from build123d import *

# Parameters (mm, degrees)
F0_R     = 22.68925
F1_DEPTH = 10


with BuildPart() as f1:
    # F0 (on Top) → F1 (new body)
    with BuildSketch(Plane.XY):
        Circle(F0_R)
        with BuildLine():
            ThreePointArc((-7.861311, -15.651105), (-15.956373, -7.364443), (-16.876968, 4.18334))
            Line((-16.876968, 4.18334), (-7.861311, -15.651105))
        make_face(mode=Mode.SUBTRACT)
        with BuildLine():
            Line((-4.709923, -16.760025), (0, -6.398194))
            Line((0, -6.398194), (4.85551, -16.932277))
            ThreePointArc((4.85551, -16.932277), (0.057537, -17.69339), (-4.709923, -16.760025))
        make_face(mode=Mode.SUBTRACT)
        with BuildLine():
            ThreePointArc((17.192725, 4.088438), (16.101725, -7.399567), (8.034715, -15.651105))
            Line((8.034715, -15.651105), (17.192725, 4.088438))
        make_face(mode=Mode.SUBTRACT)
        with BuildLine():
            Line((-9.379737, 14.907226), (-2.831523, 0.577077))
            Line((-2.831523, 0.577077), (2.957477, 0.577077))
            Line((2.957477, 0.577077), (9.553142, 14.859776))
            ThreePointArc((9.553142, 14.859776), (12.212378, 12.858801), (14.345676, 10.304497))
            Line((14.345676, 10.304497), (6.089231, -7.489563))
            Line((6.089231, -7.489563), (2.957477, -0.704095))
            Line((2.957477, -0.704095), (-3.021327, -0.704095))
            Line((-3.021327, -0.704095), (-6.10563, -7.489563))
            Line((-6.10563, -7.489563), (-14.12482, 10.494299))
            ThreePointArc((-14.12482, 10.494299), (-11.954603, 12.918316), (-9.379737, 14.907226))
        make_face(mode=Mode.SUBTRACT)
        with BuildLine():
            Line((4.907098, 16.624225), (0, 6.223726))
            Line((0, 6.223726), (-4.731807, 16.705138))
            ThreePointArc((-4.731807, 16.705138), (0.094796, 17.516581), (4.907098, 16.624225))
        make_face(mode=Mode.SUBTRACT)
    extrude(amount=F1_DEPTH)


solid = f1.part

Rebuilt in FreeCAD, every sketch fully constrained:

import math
import FreeCAD as App
import Part
import Sketcher
from FreeCAD import Vector
Q = App.Units.Quantity

doc = App.newDocument("Part")
body = doc.addObject("PartDesign::Body", "Body")

sketch1 = doc.addObject("Sketcher::SketchObject", "Sketch")
body.addObject(sketch1)
sketch1.AttachmentSupport = (doc.XY_Plane, [""])
sketch1.MapMode = "FlatFace"
sketch1.addGeometry([
    Part.Circle(Vector(0, 0, 0), Vector(0, 0, 1), 23),
    Part.ArcOfCircle(Part.Circle(Vector(0, -4, 0), Vector(0, 0, 1), 14), math.radians(-111), math.radians(-71)),
    Part.LineSegment(Vector(-5, -17, 0), Vector(0, -6, 0)),
    Part.LineSegment(Vector(0, -6, 0), Vector(5, -17, 0)),
    Part.LineSegment(Vector(-17, 4, 0), Vector(-8, -16, 0)),
    Part.ArcOfCircle(Part.Circle(Vector(0, 0, 0), Vector(0, 0, 1), 17), math.radians(165), math.radians(244)),
    Part.LineSegment(Vector(8, -16, 0), Vector(17, 4, 0)),
    Part.ArcOfCircle(Part.Circle(Vector(0, 0, 0), Vector(0, 0, 1), 17), math.radians(-64), math.radians(14)),
    Part.ArcOfCircle(Part.Circle(Vector(0, 0, 0), Vector(0, 0, 1), 18), math.radians(122), math.radians(143)),
    Part.LineSegment(Vector(-9, 15, 0), Vector(-3, 1, 0)),
    Part.LineSegment(Vector(-3, 1, 0), Vector(3, 1, 0)),
    Part.LineSegment(Vector(3, 1, 0), Vector(10, 15, 0)),
    Part.ArcOfCircle(Part.Circle(Vector(2, 2, 0), Vector(0, 0, 1), 15), math.radians(33), math.radians(60)),
    Part.LineSegment(Vector(14, 10, 0), Vector(6, -7, 0)),
    Part.LineSegment(Vector(6, -7, 0), Vector(3, -1, 0)),
    Part.LineSegment(Vector(3, -1, 0), Vector(-3, -1, 0)),
    Part.LineSegment(Vector(-3, -1, 0), Vector(-6, -7, 0)),
    Part.LineSegment(Vector(-6, -7, 0), Vector(-14, 10, 0)),
    Part.ArcOfCircle(Part.Circle(Vector(0, 3, 0), Vector(0, 0, 1), 14), math.radians(69), math.radians(110)),
    Part.LineSegment(Vector(5, 17, 0), Vector(0, 6, 0)),
    Part.LineSegment(Vector(0, 6, 0), Vector(-5, 17, 0)),
], False)
sketch1.addConstraint([
    Sketcher.Constraint("Coincident", 1, 1, 2, 1),
    Sketcher.Constraint("Coincident", 2, 2, 3, 1),
    Sketcher.Constraint("Coincident", 3, 2, 1, 2),
    Sketcher.Constraint("Coincident", 4, 1, 5, 1),
    Sketcher.Constraint("Coincident", 5, 2, 4, 2),
    Sketcher.Constraint("Coincident", 6, 1, 7, 1),
    Sketcher.Constraint("Coincident", 7, 2, 6, 2),
    Sketcher.Constraint("Coincident", 8, 1, 9, 1),
    Sketcher.Constraint("Coincident", 9, 2, 10, 1),
    Sketcher.Constraint("Coincident", 10, 2, 11, 1),
    Sketcher.Constraint("Coincident", 11, 2, 12, 2),
    Sketcher.Constraint("Coincident", 12, 1, 13, 1),
    Sketcher.Constraint("Coincident", 13, 2, 14, 1),
    Sketcher.Constraint("Coincident", 14, 2, 15, 1),
    Sketcher.Constraint("Coincident", 15, 2, 16, 1),
    Sketcher.Constraint("Coincident", 16, 2, 17, 1),
    Sketcher.Constraint("Coincident", 17, 2, 8, 2),
    Sketcher.Constraint("Coincident", 18, 1, 19, 1),
    Sketcher.Constraint("Coincident", 19, 2, 20, 1),
    Sketcher.Constraint("Coincident", 20, 2, 18, 2),
    Sketcher.Constraint("Horizontal", 10),
    Sketcher.Constraint("Horizontal", 15),
    Sketcher.Constraint("Coincident", 0, 3, -1, 1),
    Sketcher.Constraint("PointOnObject", 2, 2, -2),
    Sketcher.Constraint("PointOnObject", 19, 2, -2),
    Sketcher.Constraint("Parallel", 2, 16),
    Sketcher.Constraint("Horizontal", 5, 2, 6, 1),
    Sketcher.Constraint("Horizontal", 13, 2, 16, 2),
    Sketcher.Constraint("Vertical", 10, 2, 14, 2),
    Sketcher.Constraint("Equal", 19, 20),
    Sketcher.Constraint("Distance", 19, Q("11.5 mm")),
    Sketcher.Constraint("Diameter", 0, Q("45.3785 mm")),
    Sketcher.Constraint("DistanceX", 10, 1, 10, 2, Q("5.789 mm")),
    Sketcher.Constraint("Radius", 1, Q("13.925242 mm")),
    Sketcher.Constraint("Radius", 12, Q("14.507982 mm")),
    Sketcher.Constraint("DistanceY", 7, 3, -1, 1, Q("0.112 mm")),
    Sketcher.Constraint("Radius", 5, Q("17.028454 mm")),
    Sketcher.Constraint("Radius", 7, Q("17.316096 mm")),
    Sketcher.Constraint("Radius", 8, Q("17.815415 mm")),
    Sketcher.Constraint("Radius", 18, Q("14.058994 mm")),
    Sketcher.Constraint("DistanceY", 8, 1, 18, 1, Q("1.716999 mm")),
    Sketcher.Constraint("DistanceY", -1, 1, 17, 2, Q("10.494299 mm")),
    Sketcher.Constraint("DistanceY", 5, 3, 18, 3, Q("3.776101 mm")),
    Sketcher.Constraint("DistanceX", 7, 3, 3, 2, Q("4.461699 mm")),
    Sketcher.Constraint("DistanceY", 5, 2, 1, 3, Q("11.8807 mm")),
    Sketcher.Constraint("DistanceX", 12, 3, 10, 2, Q("0.740199 mm")),
    Sketcher.Constraint("DistanceY", 10, 2, 11, 2, Q("14.282699 mm")),
    Sketcher.Constraint("DistanceX", 12, 3, 12, 1, Q("12.128398 mm")),
    Sketcher.Constraint("Distance", 4, Q("21.787319 mm")),
    Sketcher.Constraint("Distance", 9, Q("15.755389 mm")),
    Sketcher.Constraint("Distance", 11, Q("15.732078 mm")),
    Sketcher.Constraint("DistanceX", 15, 2, 15, 1, Q("5.978804 mm")),
    Sketcher.Constraint("DistanceX", -1, 1, 1, 3, Q("0.308258 mm")),
    Sketcher.Constraint("DistanceX", 5, 3, -1, 1, Q("0.454239 mm")),
    Sketcher.Constraint("DistanceY", 5, 3, -1, 1, Q("0.318019 mm")),
    Sketcher.Constraint("DistanceX", -1, 1, 7, 3, Q("0.393811 mm")),
    Sketcher.Constraint("DistanceX", -1, 1, 8, 3, Q("0.17792 mm")),
    Sketcher.Constraint("DistanceY", 8, 3, -1, 1, Q("0.127408 mm")),
    Sketcher.Constraint("DistanceY", -1, 1, 12, 3, Q("2.343122 mm")),
    Sketcher.Constraint("DistanceX", 4, 1, -1, 1, Q("16.876968 mm")),
    Sketcher.Constraint("DistanceY", -1, 1, 7, 2, Q("4.088438 mm")),
    Sketcher.Constraint("DistanceX", -1, 1, 11, 2, Q("9.553142 mm")),
    Sketcher.Constraint("DistanceX", -1, 1, 13, 2, Q("6.089231 mm")),
    Sketcher.Constraint("DistanceX", 16, 2, -1, 1, Q("6.10563 mm")),
    Sketcher.Constraint("DistanceY", -1, 1, 20, 2, Q("16.705138 mm")),
    Sketcher.Constraint("DistanceX", 1, 1, 1, 3, Q("5.018181 mm")),
    Sketcher.Constraint("DistanceY", 2, 2, 1, 3, Q("2.627789 mm")),
    Sketcher.Constraint("DistanceY", 13, 2, 2, 2, Q("1.091369 mm")),
])
pad1 = doc.addObject("PartDesign::Pad", "Pad")
body.addObject(pad1)
pad1.Profile = sketch1
pad1.Length = 10

doc.recompute()
